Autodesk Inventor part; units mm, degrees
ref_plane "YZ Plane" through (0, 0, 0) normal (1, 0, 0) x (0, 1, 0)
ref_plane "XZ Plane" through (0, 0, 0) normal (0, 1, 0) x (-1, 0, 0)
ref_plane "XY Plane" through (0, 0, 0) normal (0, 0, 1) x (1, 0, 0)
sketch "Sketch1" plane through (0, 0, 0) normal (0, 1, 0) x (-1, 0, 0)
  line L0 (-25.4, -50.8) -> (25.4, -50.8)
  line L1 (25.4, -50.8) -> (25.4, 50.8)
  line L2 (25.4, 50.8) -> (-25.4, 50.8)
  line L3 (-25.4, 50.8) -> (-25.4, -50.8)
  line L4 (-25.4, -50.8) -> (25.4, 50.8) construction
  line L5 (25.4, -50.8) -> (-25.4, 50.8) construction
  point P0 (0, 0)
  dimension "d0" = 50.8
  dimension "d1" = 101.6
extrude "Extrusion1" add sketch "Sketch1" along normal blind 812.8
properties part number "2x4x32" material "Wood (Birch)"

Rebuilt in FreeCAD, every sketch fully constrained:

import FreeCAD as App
import Part
import Sketcher
Q = App.Units.Quantity

doc = App.newDocument("Part")
body = doc.addObject("PartDesign::Body", "Body")

# Sketch on XZ plane
sketch1 = body.newObject("Sketcher::SketchObject", "Sketch")
sketch1.AttachmentSupport = (doc.getObject("XZ_Plane"), [""])
sketch1.MapMode = "FlatFace"
sketch1.addGeometry([
    Part.LineSegment(App.Vector(25, 51, 0), App.Vector(25, -51, 0)),
    Part.LineSegment(App.Vector(25, -51, 0), App.Vector(-25, -51, 0)),
    Part.LineSegment(App.Vector(-25, -51, 0), App.Vector(-25, 51, 0)),
    Part.LineSegment(App.Vector(-25, 51, 0), App.Vector(25, 51, 0)),
], False)
sketch1.addConstraint([
    Sketcher.Constraint("Coincident", 0, 2, 1, 1),
    Sketcher.Constraint("Coincident", 1, 2, 2, 1),
    Sketcher.Constraint("Coincident", 2, 2, 3, 1),
    Sketcher.Constraint("Coincident", 3, 2, 0, 1),
    Sketcher.Constraint("Vertical", 0),
    Sketcher.Constraint("Horizontal", 1),
    Sketcher.Constraint("Vertical", 2),
    Sketcher.Constraint("Horizontal", 3),
    Sketcher.Constraint("Symmetric", 0, 2, 2, 2, -1, 1),
    Sketcher.Constraint("DistanceX", 1, 2, 1, 1, Q("2 in")),
    Sketcher.Constraint("DistanceY", 0, 2, 0, 1, Q("4 in")),
])
pad1 = body.newObject("PartDesign::Pad", "Pad")
pad1.Profile = sketch1
pad1.Length = Q("32 in")
pad1.Reversed = True

doc.recompute()
